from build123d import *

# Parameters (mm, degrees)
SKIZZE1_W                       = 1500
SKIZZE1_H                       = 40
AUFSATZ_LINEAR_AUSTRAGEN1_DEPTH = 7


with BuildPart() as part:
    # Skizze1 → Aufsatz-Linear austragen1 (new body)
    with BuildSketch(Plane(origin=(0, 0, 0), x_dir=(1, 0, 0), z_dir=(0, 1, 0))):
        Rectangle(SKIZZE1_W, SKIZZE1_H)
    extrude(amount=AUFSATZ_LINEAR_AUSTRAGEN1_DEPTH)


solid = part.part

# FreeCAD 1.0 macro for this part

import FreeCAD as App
import Part
import Sketcher

doc = App.newDocument("Part")
body = doc.addObject("PartDesign::Body", "Body")

# Sketch on XZ plane
sketch1 = body.newObject("Sketcher::SketchObject", "Sketch")
sketch1.AttachmentSupport = (doc.getObject("XZ_Plane"), [""])
sketch1.MapMode = "FlatFace"
sketch1.addGeometry(Part.LineSegment(App.Vector(-750, -20, 0), App.Vector(-750, 20, 0)), False)
sketch1.addGeometry(Part.LineSegment(App.Vector(-750, 20, 0), App.Vector(750, 20, 0)), False)
sketch1.addGeometry(Part.LineSegment(App.Vector(750, 20, 0), App.Vector(750, -20, 0)), False)
sketch1.addGeometry(Part.LineSegment(App.Vector(750, -20, 0), App.Vector(-750, -20, 0)), False)
sketch1.addConstraint(Sketcher.Constraint("Coincident", 0, 2, 1, 1))
sketch1.addConstraint(Sketcher.Constraint("Coincident", 1, 2, 2, 1))
sketch1.addConstraint(Sketcher.Constraint("Coincident", 2, 2, 3, 1))
sketch1.addConstraint(Sketcher.Constraint("Coincident", 3, 2, 0, 1))
sketch1.addConstraint(Sketcher.Constraint("Vertical", 0))
sketch1.addConstraint(Sketcher.Constraint("Horizontal", 1))
sketch1.addConstraint(Sketcher.Constraint("Vertical", 2))
sketch1.addConstraint(Sketcher.Constraint("Horizontal", 3))
sketch1.addConstraint(Sketcher.Constraint("Symmetric", 0, 2, 2, 2, -1, 1))
sketch1.addConstraint(Sketcher.Constraint("DistanceX", 1, 1, 1, 2, 1500.0))
sketch1.addConstraint(Sketcher.Constraint("DistanceY", 0, 1, 0, 2, 40.0))
pad1 = body.newObject("PartDesign::Pad", "Pad")
pad1.Profile = sketch1
pad1.Length = 7
pad1.Reversed = True

doc.recompute()
